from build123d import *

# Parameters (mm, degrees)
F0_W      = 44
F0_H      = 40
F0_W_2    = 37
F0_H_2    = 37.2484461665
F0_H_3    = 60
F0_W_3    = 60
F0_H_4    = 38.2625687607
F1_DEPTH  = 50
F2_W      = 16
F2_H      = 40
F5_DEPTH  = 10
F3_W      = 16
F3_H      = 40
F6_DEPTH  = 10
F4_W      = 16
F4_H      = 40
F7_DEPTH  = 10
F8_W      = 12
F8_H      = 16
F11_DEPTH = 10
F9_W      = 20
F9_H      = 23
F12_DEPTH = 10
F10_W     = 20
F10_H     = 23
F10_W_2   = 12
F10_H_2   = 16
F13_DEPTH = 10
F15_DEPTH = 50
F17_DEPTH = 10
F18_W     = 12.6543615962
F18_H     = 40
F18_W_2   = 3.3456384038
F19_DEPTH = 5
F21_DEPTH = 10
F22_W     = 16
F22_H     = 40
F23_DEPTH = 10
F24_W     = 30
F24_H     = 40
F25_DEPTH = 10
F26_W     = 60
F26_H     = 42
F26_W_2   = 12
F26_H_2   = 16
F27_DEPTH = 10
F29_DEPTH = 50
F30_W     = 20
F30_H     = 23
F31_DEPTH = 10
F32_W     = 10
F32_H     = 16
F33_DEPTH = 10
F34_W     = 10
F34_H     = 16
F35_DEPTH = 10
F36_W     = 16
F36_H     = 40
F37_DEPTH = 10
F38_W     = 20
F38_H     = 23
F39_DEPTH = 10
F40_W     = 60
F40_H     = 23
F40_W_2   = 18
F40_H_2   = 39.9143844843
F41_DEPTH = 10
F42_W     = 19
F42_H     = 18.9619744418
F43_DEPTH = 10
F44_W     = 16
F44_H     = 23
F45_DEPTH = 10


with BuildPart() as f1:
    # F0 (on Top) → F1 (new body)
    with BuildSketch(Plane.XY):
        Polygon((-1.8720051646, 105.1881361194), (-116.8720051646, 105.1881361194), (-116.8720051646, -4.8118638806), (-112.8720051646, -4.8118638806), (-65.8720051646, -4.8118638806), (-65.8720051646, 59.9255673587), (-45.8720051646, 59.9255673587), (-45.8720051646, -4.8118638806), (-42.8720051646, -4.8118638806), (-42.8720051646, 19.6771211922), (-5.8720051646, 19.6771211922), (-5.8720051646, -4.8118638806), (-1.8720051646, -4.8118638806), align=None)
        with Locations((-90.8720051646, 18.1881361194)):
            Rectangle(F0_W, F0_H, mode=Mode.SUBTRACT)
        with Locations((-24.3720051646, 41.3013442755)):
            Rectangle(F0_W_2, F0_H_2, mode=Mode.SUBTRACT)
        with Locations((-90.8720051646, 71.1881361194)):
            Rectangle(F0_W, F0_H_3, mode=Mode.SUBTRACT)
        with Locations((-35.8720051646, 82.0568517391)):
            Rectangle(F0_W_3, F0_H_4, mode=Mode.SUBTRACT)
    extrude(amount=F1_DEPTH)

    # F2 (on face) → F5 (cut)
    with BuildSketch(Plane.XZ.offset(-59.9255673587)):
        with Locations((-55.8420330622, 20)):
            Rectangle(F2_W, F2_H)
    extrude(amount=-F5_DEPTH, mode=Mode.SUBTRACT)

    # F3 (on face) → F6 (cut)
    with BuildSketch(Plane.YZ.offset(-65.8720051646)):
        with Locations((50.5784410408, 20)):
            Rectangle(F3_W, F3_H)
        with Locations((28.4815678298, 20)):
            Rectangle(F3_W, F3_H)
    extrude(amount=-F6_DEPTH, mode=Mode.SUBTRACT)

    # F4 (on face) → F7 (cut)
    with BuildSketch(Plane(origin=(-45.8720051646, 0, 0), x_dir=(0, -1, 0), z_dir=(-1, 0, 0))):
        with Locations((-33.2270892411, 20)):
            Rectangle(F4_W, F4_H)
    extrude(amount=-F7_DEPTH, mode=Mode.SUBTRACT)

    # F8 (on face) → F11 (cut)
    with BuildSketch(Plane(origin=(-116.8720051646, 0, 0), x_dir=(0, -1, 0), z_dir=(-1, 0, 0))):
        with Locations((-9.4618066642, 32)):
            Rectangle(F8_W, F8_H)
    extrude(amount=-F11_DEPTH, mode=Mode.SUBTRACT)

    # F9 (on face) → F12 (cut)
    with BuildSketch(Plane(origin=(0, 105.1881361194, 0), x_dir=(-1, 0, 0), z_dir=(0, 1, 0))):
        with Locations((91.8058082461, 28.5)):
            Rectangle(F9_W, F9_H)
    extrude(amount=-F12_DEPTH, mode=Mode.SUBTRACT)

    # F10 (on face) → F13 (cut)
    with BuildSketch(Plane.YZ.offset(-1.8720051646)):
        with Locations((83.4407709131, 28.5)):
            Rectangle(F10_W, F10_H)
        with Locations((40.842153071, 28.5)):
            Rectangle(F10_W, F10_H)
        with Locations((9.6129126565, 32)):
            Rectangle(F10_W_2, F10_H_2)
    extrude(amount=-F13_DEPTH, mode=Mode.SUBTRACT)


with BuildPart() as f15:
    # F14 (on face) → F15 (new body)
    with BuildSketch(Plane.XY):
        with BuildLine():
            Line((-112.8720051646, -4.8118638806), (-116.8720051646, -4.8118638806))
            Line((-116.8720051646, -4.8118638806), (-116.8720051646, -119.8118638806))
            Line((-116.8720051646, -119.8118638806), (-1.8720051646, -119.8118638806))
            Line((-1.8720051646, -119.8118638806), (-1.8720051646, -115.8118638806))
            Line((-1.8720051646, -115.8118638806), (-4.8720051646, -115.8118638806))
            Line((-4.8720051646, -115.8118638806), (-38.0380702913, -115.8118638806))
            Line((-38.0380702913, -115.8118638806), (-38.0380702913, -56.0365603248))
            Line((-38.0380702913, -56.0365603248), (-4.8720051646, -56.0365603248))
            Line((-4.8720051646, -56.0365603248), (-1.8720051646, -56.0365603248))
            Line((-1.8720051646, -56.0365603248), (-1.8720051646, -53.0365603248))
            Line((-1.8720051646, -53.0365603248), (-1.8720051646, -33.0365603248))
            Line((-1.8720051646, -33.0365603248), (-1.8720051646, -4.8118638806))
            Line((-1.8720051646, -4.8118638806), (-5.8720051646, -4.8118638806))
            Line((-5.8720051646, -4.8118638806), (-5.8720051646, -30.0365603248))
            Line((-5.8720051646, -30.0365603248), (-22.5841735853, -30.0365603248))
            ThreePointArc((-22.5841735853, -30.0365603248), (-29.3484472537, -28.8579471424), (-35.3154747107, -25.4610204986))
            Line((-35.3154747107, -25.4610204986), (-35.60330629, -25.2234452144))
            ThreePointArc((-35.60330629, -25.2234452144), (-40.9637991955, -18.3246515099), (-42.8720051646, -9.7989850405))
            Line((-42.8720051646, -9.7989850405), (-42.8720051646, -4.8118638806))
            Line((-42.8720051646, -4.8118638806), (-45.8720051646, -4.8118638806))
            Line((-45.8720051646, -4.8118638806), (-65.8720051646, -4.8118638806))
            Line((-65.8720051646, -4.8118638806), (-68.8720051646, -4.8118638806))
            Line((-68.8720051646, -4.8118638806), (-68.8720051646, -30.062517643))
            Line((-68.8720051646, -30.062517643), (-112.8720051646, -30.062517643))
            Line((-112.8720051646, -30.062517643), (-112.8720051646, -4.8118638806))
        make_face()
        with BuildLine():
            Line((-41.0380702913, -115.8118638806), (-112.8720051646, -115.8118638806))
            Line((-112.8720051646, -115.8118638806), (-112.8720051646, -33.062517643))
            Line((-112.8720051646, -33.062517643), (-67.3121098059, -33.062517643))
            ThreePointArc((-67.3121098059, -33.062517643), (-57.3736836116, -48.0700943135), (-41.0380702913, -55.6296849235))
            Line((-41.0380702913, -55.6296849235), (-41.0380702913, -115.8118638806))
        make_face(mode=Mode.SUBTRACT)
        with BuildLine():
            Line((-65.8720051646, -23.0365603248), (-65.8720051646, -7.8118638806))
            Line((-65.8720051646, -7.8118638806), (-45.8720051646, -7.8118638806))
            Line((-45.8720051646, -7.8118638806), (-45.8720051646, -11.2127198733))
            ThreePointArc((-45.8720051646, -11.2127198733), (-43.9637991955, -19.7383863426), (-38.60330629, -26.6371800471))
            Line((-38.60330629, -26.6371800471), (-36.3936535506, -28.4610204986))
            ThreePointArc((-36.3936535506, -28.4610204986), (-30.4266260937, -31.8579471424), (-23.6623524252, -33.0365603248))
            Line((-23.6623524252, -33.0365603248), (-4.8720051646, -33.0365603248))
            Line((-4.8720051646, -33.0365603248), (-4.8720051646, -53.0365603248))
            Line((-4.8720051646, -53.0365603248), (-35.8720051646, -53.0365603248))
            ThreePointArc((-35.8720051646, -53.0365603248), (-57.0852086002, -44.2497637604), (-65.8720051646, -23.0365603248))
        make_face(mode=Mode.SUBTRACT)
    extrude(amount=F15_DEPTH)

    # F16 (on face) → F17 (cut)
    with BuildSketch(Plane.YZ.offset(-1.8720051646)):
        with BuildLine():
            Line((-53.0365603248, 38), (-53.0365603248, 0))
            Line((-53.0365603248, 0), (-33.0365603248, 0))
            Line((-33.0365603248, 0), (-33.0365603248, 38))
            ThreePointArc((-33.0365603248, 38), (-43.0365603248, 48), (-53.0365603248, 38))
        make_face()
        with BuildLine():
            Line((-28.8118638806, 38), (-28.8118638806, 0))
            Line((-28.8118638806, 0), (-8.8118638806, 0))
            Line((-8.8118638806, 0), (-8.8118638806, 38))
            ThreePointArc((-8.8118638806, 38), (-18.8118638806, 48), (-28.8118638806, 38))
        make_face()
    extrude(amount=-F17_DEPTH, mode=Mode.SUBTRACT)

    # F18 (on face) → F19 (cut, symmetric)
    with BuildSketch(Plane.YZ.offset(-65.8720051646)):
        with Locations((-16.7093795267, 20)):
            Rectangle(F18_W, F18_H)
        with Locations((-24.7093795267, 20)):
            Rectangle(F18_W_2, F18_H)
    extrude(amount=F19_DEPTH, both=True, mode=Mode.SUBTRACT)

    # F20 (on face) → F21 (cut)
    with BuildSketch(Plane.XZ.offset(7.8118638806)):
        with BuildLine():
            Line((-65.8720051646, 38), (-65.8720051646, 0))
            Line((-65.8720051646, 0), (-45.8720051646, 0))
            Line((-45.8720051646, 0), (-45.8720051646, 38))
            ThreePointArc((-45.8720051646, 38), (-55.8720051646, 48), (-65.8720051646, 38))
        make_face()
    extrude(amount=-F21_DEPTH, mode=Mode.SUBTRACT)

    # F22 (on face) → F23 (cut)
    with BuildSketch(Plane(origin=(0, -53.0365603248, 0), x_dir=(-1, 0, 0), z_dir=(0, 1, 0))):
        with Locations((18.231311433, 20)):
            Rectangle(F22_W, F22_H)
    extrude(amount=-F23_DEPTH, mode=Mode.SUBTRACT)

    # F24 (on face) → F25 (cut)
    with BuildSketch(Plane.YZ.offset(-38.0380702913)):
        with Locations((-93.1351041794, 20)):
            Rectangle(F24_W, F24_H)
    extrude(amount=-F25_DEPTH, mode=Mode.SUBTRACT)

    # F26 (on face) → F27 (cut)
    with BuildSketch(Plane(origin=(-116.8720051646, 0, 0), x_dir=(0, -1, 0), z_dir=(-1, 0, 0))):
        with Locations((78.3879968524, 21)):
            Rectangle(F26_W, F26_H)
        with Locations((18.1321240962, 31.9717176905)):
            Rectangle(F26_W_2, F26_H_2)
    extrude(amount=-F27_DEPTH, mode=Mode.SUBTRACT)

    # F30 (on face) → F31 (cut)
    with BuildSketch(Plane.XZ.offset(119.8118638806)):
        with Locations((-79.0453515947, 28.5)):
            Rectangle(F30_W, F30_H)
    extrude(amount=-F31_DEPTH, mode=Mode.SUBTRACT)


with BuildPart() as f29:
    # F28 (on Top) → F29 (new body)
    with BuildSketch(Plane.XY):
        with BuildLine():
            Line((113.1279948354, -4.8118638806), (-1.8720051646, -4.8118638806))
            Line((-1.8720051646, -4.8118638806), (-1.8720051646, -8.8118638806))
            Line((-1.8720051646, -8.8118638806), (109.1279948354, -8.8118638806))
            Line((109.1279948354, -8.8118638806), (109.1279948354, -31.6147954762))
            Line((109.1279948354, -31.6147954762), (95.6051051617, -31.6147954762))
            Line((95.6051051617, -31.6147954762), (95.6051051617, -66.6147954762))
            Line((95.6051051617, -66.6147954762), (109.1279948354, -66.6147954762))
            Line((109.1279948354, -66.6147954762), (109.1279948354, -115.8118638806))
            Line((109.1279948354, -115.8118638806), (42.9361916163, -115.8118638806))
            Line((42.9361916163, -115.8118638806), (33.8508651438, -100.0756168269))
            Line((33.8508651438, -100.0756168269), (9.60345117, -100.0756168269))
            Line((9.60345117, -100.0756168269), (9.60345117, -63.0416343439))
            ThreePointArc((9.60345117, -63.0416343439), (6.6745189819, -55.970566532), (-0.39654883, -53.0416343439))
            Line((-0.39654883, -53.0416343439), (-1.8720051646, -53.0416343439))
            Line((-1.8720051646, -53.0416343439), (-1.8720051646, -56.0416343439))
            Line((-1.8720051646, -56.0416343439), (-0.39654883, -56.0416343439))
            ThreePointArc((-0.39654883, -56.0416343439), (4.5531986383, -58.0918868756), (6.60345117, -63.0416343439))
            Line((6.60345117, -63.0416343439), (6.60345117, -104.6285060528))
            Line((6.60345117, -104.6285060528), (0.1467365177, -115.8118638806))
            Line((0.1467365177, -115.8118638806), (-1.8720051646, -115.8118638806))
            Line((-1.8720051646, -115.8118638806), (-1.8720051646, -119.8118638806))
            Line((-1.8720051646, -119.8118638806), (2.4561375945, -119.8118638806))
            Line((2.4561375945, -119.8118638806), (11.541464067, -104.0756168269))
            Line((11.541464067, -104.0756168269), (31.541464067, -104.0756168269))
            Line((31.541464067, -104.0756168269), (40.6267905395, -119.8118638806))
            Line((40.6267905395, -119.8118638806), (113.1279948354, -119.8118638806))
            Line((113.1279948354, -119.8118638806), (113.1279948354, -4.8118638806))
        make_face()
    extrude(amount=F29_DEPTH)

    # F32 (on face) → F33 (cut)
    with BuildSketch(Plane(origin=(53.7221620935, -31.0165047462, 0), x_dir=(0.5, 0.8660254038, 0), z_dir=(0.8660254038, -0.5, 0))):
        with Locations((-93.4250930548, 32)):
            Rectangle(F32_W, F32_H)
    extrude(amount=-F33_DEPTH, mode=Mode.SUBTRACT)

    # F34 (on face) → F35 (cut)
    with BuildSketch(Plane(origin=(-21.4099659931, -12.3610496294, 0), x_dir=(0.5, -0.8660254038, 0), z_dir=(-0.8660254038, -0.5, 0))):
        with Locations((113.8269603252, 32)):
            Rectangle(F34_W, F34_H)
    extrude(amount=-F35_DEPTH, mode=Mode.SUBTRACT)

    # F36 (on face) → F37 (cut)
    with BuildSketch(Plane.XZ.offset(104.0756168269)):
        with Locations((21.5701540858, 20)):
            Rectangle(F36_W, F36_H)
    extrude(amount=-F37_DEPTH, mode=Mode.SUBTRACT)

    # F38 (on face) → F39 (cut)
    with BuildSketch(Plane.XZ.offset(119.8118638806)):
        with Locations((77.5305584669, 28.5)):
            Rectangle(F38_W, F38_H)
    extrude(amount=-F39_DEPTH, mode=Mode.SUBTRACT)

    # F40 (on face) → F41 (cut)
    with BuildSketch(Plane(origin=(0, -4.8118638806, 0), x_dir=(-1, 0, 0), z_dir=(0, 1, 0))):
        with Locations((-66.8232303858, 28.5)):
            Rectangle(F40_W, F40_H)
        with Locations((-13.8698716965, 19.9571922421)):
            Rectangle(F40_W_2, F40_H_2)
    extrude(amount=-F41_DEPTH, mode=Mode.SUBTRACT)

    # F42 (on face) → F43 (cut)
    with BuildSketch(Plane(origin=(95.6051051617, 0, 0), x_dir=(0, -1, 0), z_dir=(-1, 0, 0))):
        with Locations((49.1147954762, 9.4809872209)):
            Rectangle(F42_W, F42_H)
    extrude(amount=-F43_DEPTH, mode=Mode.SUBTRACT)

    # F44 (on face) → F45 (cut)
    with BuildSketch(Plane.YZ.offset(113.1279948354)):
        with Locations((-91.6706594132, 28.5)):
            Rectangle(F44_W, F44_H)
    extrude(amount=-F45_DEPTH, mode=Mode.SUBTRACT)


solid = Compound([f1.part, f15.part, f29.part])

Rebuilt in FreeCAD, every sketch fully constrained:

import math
import FreeCAD as App
import Part
import Sketcher

V = App.Vector
Q = App.Units.Quantity


def add_polygon(sketch, points):
    """Adds a closed chain of lines whose ends are joined by coincident constraints."""
    first, n = sketch.GeometryCount, len(points)
    for a, b in zip(points, points[1:] + points[:1]):
        sketch.addGeometry(Part.LineSegment(App.Vector(*a, 0), App.Vector(*b, 0)), False)
    for i in range(n):
        sketch.addConstraint(Sketcher.Constraint("Coincident", first + i, 2, first + (i + 1) % n, 1))

doc = App.newDocument("Part")
body = doc.addObject("PartDesign::Body", "Body")

sketch1 = doc.addObject("Sketcher::SketchObject", "Sketch")
body.addObject(sketch1)
sketch1.AttachmentSupport = (doc.XY_Plane, [""])
sketch1.MapMode = "FlatFace"
add_polygon(sketch1, [(-1.9, 105.2), (-116.9, 105.2), (-116.9, -4.8), (-65.9, -4.8), (-65.9, 59.9), (-45.9, 59.9), (-45.9, -4.8), (-42.9, -4.8), (-42.9, 19.7), (-5.9, 19.7), (-5.9, -4.8), (-1.9, -4.8)])
add_polygon(sketch1, [(-68.9, -1.8), (-112.9, -1.8), (-112.9, 38.2), (-68.9, 38.2)])
add_polygon(sketch1, [(-5.9, 22.7), (-42.9, 22.7), (-42.9, 59.9), (-5.9, 59.9)])
add_polygon(sketch1, [(-68.9, 41.2), (-112.9, 41.2), (-112.9, 101.2), (-68.9, 101.2)])
add_polygon(sketch1, [(-5.9, 62.9), (-65.9, 62.9), (-65.9, 101.2), (-5.9, 101.2)])
sketch1.addConstraint([
    Sketcher.Constraint("Horizontal", 0),
    Sketcher.Constraint("Vertical", 1),
    Sketcher.Constraint("Horizontal", 2),
    Sketcher.Constraint("Vertical", 3),
    Sketcher.Constraint("Horizontal", 4),
    Sketcher.Constraint("Vertical", 5),
    Sketcher.Constraint("Horizontal", 6),
    Sketcher.Constraint("Vertical", 7),
    Sketcher.Constraint("Horizontal", 8),
    Sketcher.Constraint("Vertical", 9),
    Sketcher.Constraint("Horizontal", 10),
    Sketcher.Constraint("Vertical", 11),
    Sketcher.Constraint("Horizontal", 12),
    Sketcher.Constraint("Vertical", 13),
    Sketcher.Constraint("Horizontal", 14),
    Sketcher.Constraint("Vertical", 15),
    Sketcher.Constraint("Horizontal", 16),
    Sketcher.Constraint("Vertical", 17),
    Sketcher.Constraint("Horizontal", 18),
    Sketcher.Constraint("Vertical", 19),
    Sketcher.Constraint("Horizontal", 20),
    Sketcher.Constraint("Vertical", 21),
    Sketcher.Constraint("Horizontal", 22),
    Sketcher.Constraint("Vertical", 23),
    Sketcher.Constraint("Horizontal", 24),
    Sketcher.Constraint("Vertical", 25),
    Sketcher.Constraint("Horizontal", 26),
    Sketcher.Constraint("Vertical", 27),
    Sketcher.Constraint("Horizontal", 2, 2, 5, 2),
    Sketcher.Constraint("Horizontal", 6, 2, 9, 2),
    Sketcher.Constraint("Horizontal", 4, 2, 17, 2),
    Sketcher.Constraint("Horizontal", 22, 2, 25, 2),
    Sketcher.Constraint("Vertical", 7, 2, 16, 2),
    Sketcher.Constraint("Vertical", 9, 2, 18, 2),
    Sketcher.Constraint("Vertical", 13, 2, 20, 2),
    Sketcher.Constraint("Vertical", 15, 2, 22, 2),
    Sketcher.Constraint("Vertical", 3, 2, 24, 2),
    Sketcher.Constraint("Vertical", 19, 2, 26, 2),
    Sketcher.Constraint("Equal", 26, 21),
    Sketcher.Constraint("DistanceX", 0, 2, 0, 1, 115.0),
    Sketcher.Constraint("DistanceX", 2, 1, 2, 2, 51.0),
    Sketcher.Constraint("DistanceX", 4, 1, 4, 2, 20.0),
    Sketcher.Constraint("DistanceX", 6, 1, 6, 2, 3.0),
    Sketcher.Constraint("DistanceX", 8, 1, 8, 2, 37.0),
    Sketcher.Constraint("DistanceX", 12, 2, 12, 1, 44.0),
    Sketcher.Constraint("DistanceY", 1, 2, 1, 1, 110.0),
    Sketcher.Constraint("DistanceY", 13, 1, 13, 2, 40.0),
    Sketcher.Constraint("DistanceX", 1, 2, 12, 2, 4.0),
    Sketcher.Constraint("DistanceY", 1, 2, 12, 2, 3.0),
    Sketcher.Constraint("DistanceY", 7, 2, 16, 2, 3.0),
    Sketcher.Constraint("DistanceY", 13, 2, 20, 2, 3.0),
    Sketcher.Constraint("DistanceY", 3, 2, 24, 2, 3.0),
    Sketcher.Constraint("DistanceY", 3, 1, 3, 2, 64.737431),
    Sketcher.Constraint("DistanceY", 7, 1, 7, 2, 24.488985),
    Sketcher.Constraint("DistanceY", -1, 1, 7, 2, 19.677121),
    Sketcher.Constraint("DistanceX", 0, 2, -1, 1, 116.872005),
])
pad1 = doc.addObject("PartDesign::Pad", "Pad")
body.addObject(pad1)
pad1.Profile = sketch1
pad1.Length = 50

sketch2 = doc.addObject("Sketcher::SketchObject", "Sketch001")
body.addObject(sketch2)
sketch2.AttachmentSupport = (doc.XZ_Plane, [""])
sketch2.MapMode = "FlatFace"
sketch2.AttachmentOffset = App.Placement(V(0, 0, -59.925567), App.Rotation())
add_polygon(sketch2, [(-64, 40), (-64, 0), (-48, 0), (-48, 40)])
sketch2.addConstraint([
    Sketcher.Constraint("Vertical", 0),
    Sketcher.Constraint("Horizontal", 1),
    Sketcher.Constraint("Vertical", 2),
    Sketcher.Constraint("Horizontal", 3),
    Sketcher.Constraint("PointOnObject", 0, 2, -1),
    Sketcher.Constraint("DistanceX", 1, 1, 1, 2, 16.0),
    Sketcher.Constraint("DistanceY", 0, 2, 0, 1, 40.0),
    Sketcher.Constraint("DistanceX", 0, 2, -1, 1, 63.842033),
])
pocket1 = doc.addObject("PartDesign::Pocket", "Pocket")
body.addObject(pocket1)
pocket1.Profile = sketch2
pocket1.Length = 10

sketch3 = doc.addObject("Sketcher::SketchObject", "Sketch002")
body.addObject(sketch3)
sketch3.AttachmentSupport = (doc.YZ_Plane, [""])
sketch3.MapMode = "FlatFace"
sketch3.AttachmentOffset = App.Placement(V(0, 0, -65.872005), App.Rotation())
add_polygon(sketch3, [(43, 40), (43, 0), (59, 0), (59, 40)])
add_polygon(sketch3, [(20, 40), (20, 0), (36, 0), (36, 40)])
sketch3.addConstraint([
    Sketcher.Constraint("Vertical", 0),
    Sketcher.Constraint("Horizontal", 1),
    Sketcher.Constraint("Vertical", 2),
    Sketcher.Constraint("Horizontal", 3),
    Sketcher.Constraint("Vertical", 4),
    Sketcher.Constraint("Horizontal", 5),
    Sketcher.Constraint("Vertical", 6),
    Sketcher.Constraint("Horizontal", 7),
    Sketcher.Constraint("PointOnObject", 0, 2, -1),
    Sketcher.Constraint("PointOnObject", 4, 2, -1),
    Sketcher.Constraint("Horizontal", 3, 2, 6, 2),
    Sketcher.Constraint("Equal", 3, 5),
    Sketcher.Constraint("DistanceX", 1, 1, 1, 2, 16.0),
    Sketcher.Constraint("DistanceY", 0, 2, 0, 1, 40.0),
    Sketcher.Constraint("DistanceX", -1, 1, 0, 2, 42.578441),
    Sketcher.Constraint("DistanceX", -1, 1, 4, 2, 20.481568),
])
pocket2 = doc.addObject("PartDesign::Pocket", "Pocket001")
body.addObject(pocket2)
pocket2.Profile = sketch3
pocket2.Length = 10

sketch4 = doc.addObject("Sketcher::SketchObject", "Sketch003")
body.addObject(sketch4)
sketch4.AttachmentSupport = (doc.YZ_Plane, [""])
sketch4.MapMode = "FlatFace"
sketch4.AttachmentOffset = App.Placement(V(0, 0, -45.872005), App.Rotation())
add_polygon(sketch4, [(41, 40), (41, 0), (25, 0), (25, 40)])
sketch4.addConstraint([
    Sketcher.Constraint("Vertical", 0),
    Sketcher.Constraint("Horizontal", 1),
    Sketcher.Constraint("Vertical", 2),
    Sketcher.Constraint("Horizontal", 3),
    Sketcher.Constraint("PointOnObject", 0, 2, -1),
    Sketcher.Constraint("DistanceX", 1, 2, 1, 1, 16.0),
    Sketcher.Constraint("DistanceY", 0, 2, 0, 1, 40.0),
    Sketcher.Constraint("DistanceX", -1, 1, 0, 2, 41.227089),
])
pocket3 = doc.addObject("PartDesign::Pocket", "Pocket002")
body.addObject(pocket3)
pocket3.Profile = sketch4
pocket3.Length = 10
pocket3.Reversed = True

sketch5 = doc.addObject("Sketcher::SketchObject", "Sketch004")
body.addObject(sketch5)
sketch5.AttachmentSupport = (doc.YZ_Plane, [""])
sketch5.MapMode = "FlatFace"
sketch5.AttachmentOffset = App.Placement(V(0, 0, -116.872005), App.Rotation())
add_polygon(sketch5, [(15, 40), (15, 24), (3, 24), (3, 40)])
sketch5.addConstraint([
    Sketcher.Constraint("Vertical", 0),
    Sketcher.Constraint("Horizontal", 1),
    Sketcher.Constraint("Vertical", 2),
    Sketcher.Constraint("Horizontal", 3),
    Sketcher.Constraint("DistanceX", 1, 2, 1, 1, 12.0),
    Sketcher.Constraint("DistanceY", 0, 2, 0, 1, 16.0),
    Sketcher.Constraint("DistanceY", -1, 1, 0, 2, 24.0),
    Sketcher.Constraint("DistanceX", -1, 1, 0, 2, 15.461807),
])
pocket4 = doc.addObject("PartDesign::Pocket", "Pocket003")
body.addObject(pocket4)
pocket4.Profile = sketch5
pocket4.Length = 10
pocket4.Reversed = True

sketch6 = doc.addObject("Sketcher::SketchObject", "Sketch005")
body.addObject(sketch6)
sketch6.AttachmentSupport = (doc.XZ_Plane, [""])
sketch6.MapMode = "FlatFace"
sketch6.AttachmentOffset = App.Placement(V(0, 0, -105.188136), App.Rotation())
add_polygon(sketch6, [(-82, 40), (-82, 17), (-102, 17), (-102, 40)])
sketch6.addConstraint([
    Sketcher.Constraint("Vertical", 0),
    Sketcher.Constraint("Horizontal", 1),
    Sketcher.Constraint("Vertical", 2),
    Sketcher.Constraint("Horizontal", 3),
    Sketcher.Constraint("DistanceX", 1, 2, 1, 1, 20.0),
    Sketcher.Constraint("DistanceY", 0, 2, 0, 1, 23.0),
    Sketcher.Constraint("DistanceY", -1, 1, 0, 2, 17.0),
    Sketcher.Constraint("DistanceX", 0, 2, -1, 1, 81.805808),
])
pocket5 = doc.addObject("PartDesign::Pocket", "Pocket004")
body.addObject(pocket5)
pocket5.Profile = sketch6
pocket5.Length = 10
pocket5.Reversed = True

sketch7 = doc.addObject("Sketcher::SketchObject", "Sketch006")
body.addObject(sketch7)
sketch7.AttachmentSupport = (doc.YZ_Plane, [""])
sketch7.MapMode = "FlatFace"
sketch7.AttachmentOffset = App.Placement(V(0, 0, -1.872005), App.Rotation())
add_polygon(sketch7, [(73, 40), (73, 17), (93, 17), (93, 40)])
add_polygon(sketch7, [(31, 40), (31, 17), (51, 17), (51, 40)])
add_polygon(sketch7, [(4, 40), (4, 24), (16, 24), (16, 40)])
sketch7.addConstraint([
    Sketcher.Constraint("Vertical", 0),
    Sketcher.Constraint("Horizontal", 1),
    Sketcher.Constraint("Vertical", 2),
    Sketcher.Constraint("Horizontal", 3),
    Sketcher.Constraint("Vertical", 4),
    Sketcher.Constraint("Horizontal", 5),
    Sketcher.Constraint("Vertical", 6),
    Sketcher.Constraint("Horizontal", 7),
    Sketcher.Constraint("Vertical", 8),
    Sketcher.Constraint("Horizontal", 9),
    Sketcher.Constraint("Vertical", 10),
    Sketcher.Constraint("Horizontal", 11),
    Sketcher.Constraint("Horizontal", 1, 2, 4, 2),
    Sketcher.Constraint("Horizontal", 3, 2, 6, 2),
    Sketcher.Constraint("Horizontal", 7, 2, 10, 2),
    Sketcher.Constraint("Equal", 3, 5),
    Sketcher.Constraint("DistanceX", 1, 1, 1, 2, 20.0),
    Sketcher.Constraint("DistanceX", 9, 1, 9, 2, 12.0),
    Sketcher.Constraint("DistanceY", 0, 2, 0, 1, 23.0),
    Sketcher.Constraint("DistanceY", 8, 2, 8, 1, 16.0),
    Sketcher.Constraint("DistanceY", -1, 1, 0, 2, 17.0),
    Sketcher.Constraint("DistanceX", -1, 1, 0, 2, 73.440771),
    Sketcher.Constraint("DistanceX", 8, 2, 4, 2, 27.22924),
    Sketcher.Constraint("DistanceX", 8, 2, 0, 2, 69.827858),
])
pocket6 = doc.addObject("PartDesign::Pocket", "Pocket005")
body.addObject(pocket6)
pocket6.Profile = sketch7
pocket6.Length = 10
body2 = doc.addObject("PartDesign::Body", "Body001")

sketch8 = doc.addObject("Sketcher::SketchObject", "Sketch007")
body2.addObject(sketch8)
sketch8.AttachmentSupport = (doc.getObject("XY_Plane001"), [""])
sketch8.MapMode = "FlatFace"
sketch8.addGeometry([
    Part.LineSegment(V(-112.87, -4.81, 0), V(-116.87, -4.81, 0)),
    Part.LineSegment(V(-116.87, -4.81, 0), V(-116.87, -119.81, 0)),
    Part.LineSegment(V(-116.87, -119.81, 0), V(-1.87, -119.81, 0)),
    Part.LineSegment(V(-1.87, -119.81, 0), V(-1.87, -115.81, 0)),
    Part.LineSegment(V(-1.87, -115.81, 0), V(-38.04, -115.81, 0)),
    Part.LineSegment(V(-38.04, -115.81, 0), V(-38.04, -56.04, 0)),
    Part.LineSegment(V(-38.04, -56.04, 0), V(-1.87, -56.04, 0)),
    Part.LineSegment(V(-1.87, -56.04, 0), V(-1.87, -4.81, 0)),
    Part.LineSegment(V(-1.87, -4.81, 0), V(-5.87, -4.81, 0)),
    Part.LineSegment(V(-5.87, -4.81, 0), V(-5.87, -30.04, 0)),
    Part.LineSegment(V(-5.87, -30.04, 0), V(-22.58, -30.04, 0)),
    Part.ArcOfCircle(Part.Circle(V(-22.58, -10.04, 0), V(0, 0, 1), 20), math.radians(-130), math.radians(-90)),
    Part.LineSegment(V(-35.32, -25.46, 0), V(-35.6, -25.22, 0)),
    Part.ArcOfCircle(Part.Circle(V(-22.87, -9.8, 0), V(0, 0, 1), 20), math.radians(180), math.radians(230)),
    Part.LineSegment(V(-42.87, -9.8, 0), V(-42.87, -4.81, 0)),
    Part.LineSegment(V(-42.87, -4.81, 0), V(-68.87, -4.81, 0)),
    Part.LineSegment(V(-68.87, -4.81, 0), V(-68.87, -30.06, 0)),
    Part.LineSegment(V(-68.87, -30.06, 0), V(-112.87, -30.06, 0)),
    Part.LineSegment(V(-112.87, -30.06, 0), V(-112.87, -4.81, 0)),
    Part.LineSegment(V(-41.04, -55.63, 0), V(-41.04, -115.81, 0)),
    Part.LineSegment(V(-41.04, -115.81, 0), V(-112.87, -115.81, 0)),
    Part.LineSegment(V(-112.87, -115.81, 0), V(-112.87, -33.06, 0)),
    Part.LineSegment(V(-112.87, -33.06, 0), V(-67.31, -33.06, 0)),
    Part.ArcOfCircle(Part.Circle(V(-35.87, -23.04, 0), V(0, 0, 1), 33), math.radians(-162), math.radians(-99)),
    Part.ArcOfCircle(Part.Circle(V(-35.87, -23.04, 0), V(0, 0, 1), 30), math.radians(180), math.radians(270)),
    Part.LineSegment(V(-65.87, -23.04, 0), V(-65.87, -7.81, 0)),
    Part.LineSegment(V(-65.87, -7.81, 0), V(-45.87, -7.81, 0)),
    Part.LineSegment(V(-45.87, -7.81, 0), V(-45.87, -11.21, 0)),
    Part.ArcOfCircle(Part.Circle(V(-25.87, -11.21, 0), V(0, 0, 1), 20), math.radians(180), math.radians(230)),
    Part.LineSegment(V(-38.6, -26.64, 0), V(-36.39, -28.46, 0)),
    Part.ArcOfCircle(Part.Circle(V(-23.66, -13.04, 0), V(0, 0, 1), 20), math.radians(-130), math.radians(-90)),
    Part.LineSegment(V(-23.66, -33.04, 0), V(-4.87, -33.04, 0)),
    Part.LineSegment(V(-4.87, -33.04, 0), V(-4.87, -53.04, 0)),
    Part.LineSegment(V(-4.87, -53.04, 0), V(-35.87, -53.04, 0)),
], False)
sketch8.addConstraint([
    Sketcher.Constraint("Coincident", 0, 2, 1, 1),
    Sketcher.Constraint("Coincident", 1, 2, 2, 1),
    Sketcher.Constraint("Coincident", 2, 2, 3, 1),
    Sketcher.Constraint("Coincident", 3, 2, 4, 1),
    Sketcher.Constraint("Coincident", 4, 2, 5, 1),
    Sketcher.Constraint("Coincident", 5, 2, 6, 1),
    Sketcher.Constraint("Coincident", 6, 2, 7, 1),
    Sketcher.Constraint("Coincident", 7, 2, 8, 1),
    Sketcher.Constraint("Coincident", 8, 2, 9, 1),
    Sketcher.Constraint("Coincident", 9, 2, 10, 1),
    Sketcher.Constraint("Tangent", 10, 2, 11, 2),
    Sketcher.Constraint("Tangent", 11, 1, 12, 1),
    Sketcher.Constraint("Tangent", 12, 2, 13, 2),
    Sketcher.Constraint("Tangent", 13, 1, 14, 1),
    Sketcher.Constraint("Coincident", 14, 2, 15, 1),
    Sketcher.Constraint("Coincident", 15, 2, 16, 1),
    Sketcher.Constraint("Coincident", 16, 2, 17, 1),
    Sketcher.Constraint("Coincident", 17, 2, 18, 1),
    Sketcher.Constraint("Coincident", 18, 2, 0, 1),
    Sketcher.Constraint("Coincident", 19, 2, 20, 1),
    Sketcher.Constraint("Coincident", 20, 2, 21, 1),
    Sketcher.Constraint("Coincident", 21, 2, 22, 1),
    Sketcher.Constraint("Coincident", 22, 2, 23, 1),
    Sketcher.Constraint("Coincident", 23, 2, 19, 1),
    Sketcher.Constraint("Tangent", 24, 1, 25, 1),
    Sketcher.Constraint("Coincident", 25, 2, 26, 1),
    Sketcher.Constraint("Coincident", 26, 2, 27, 1),
    Sketcher.Constraint("Tangent", 27, 2, 28, 1),
    Sketcher.Constraint("Tangent", 28, 2, 29, 1),
    Sketcher.Constraint("Tangent", 29, 2, 30, 1),
    Sketcher.Constraint("Tangent", 30, 2, 31, 1),
    Sketcher.Constraint("Coincident", 31, 2, 32, 1),
    Sketcher.Constraint("Coincident", 32, 2, 33, 1),
    Sketcher.Constraint("Tangent", 33, 2, 24, 2),
    Sketcher.Constraint("Horizontal", 0),
    Sketcher.Constraint("Vertical", 1),
    Sketcher.Constraint("Horizontal", 2),
    Sketcher.Constraint("Vertical", 3),
    Sketcher.Constraint("Horizontal", 4),
    Sketcher.Constraint("Vertical", 5),
    Sketcher.Constraint("Horizontal", 6),
    Sketcher.Constraint("Vertical", 7),
    Sketcher.Constraint("Horizontal", 8),
    Sketcher.Constraint("Vertical", 9),
    Sketcher.Constraint("Horizontal", 10),
    Sketcher.Constraint("Vertical", 14),
    Sketcher.Constraint("Horizontal", 15),
    Sketcher.Constraint("Vertical", 16),
    Sketcher.Constraint("Horizontal", 17),
    Sketcher.Constraint("Vertical", 18),
    Sketcher.Constraint("Vertical", 19),
    Sketcher.Constraint("Horizontal", 20),
    Sketcher.Constraint("Vertical", 21),
    Sketcher.Constraint("Horizontal", 22),
    Sketcher.Constraint("Vertical", 25),
    Sketcher.Constraint("Horizontal", 26),
    Sketcher.Constraint("Vertical", 27),
    Sketcher.Constraint("Horizontal", 31),
    Sketcher.Constraint("Vertical", 32),
    Sketcher.Constraint("Horizontal", 33),
    Sketcher.Constraint("Coincident", 24, 3, 23, 3),
    Sketcher.Constraint("Equal", 11, 13),
    Sketcher.Constraint("Equal", 13, 28),
    Sketcher.Constraint("Equal", 28, 30),
    Sketcher.Constraint("Parallel", 12, 29),
    Sketcher.Constraint("Horizontal", 0, 2, 7, 2),
    Sketcher.Constraint("Horizontal", 8, 2, 14, 2),
    Sketcher.Constraint("Horizontal", 4, 2, 19, 2),
    Sketcher.Constraint("Vertical", 3, 2, 6, 2),
    Sketcher.Constraint("Vertical", 18, 2, 20, 2),
    Sketcher.Constraint("Equal", 0, 8),
    Sketcher.Constraint("Equal", 2, 1),
    Sketcher.Constraint("Equal", 8, 3),
    Sketcher.Constraint("Equal", 26, 32),
    Sketcher.Constraint("Radius", 11, 20.0),
    Sketcher.Constraint("Radius", 23, 33.0),
    Sketcher.Constraint("Radius", 24, 30.0),
    Sketcher.Constraint("DistanceX", 0, 2, 0, 1, 4.0),
    Sketcher.Constraint("DistanceX", 2, 1, 2, 2, 115.0),
    Sketcher.Constraint("DistanceX", 15, 2, 15, 1, 26.0),
    Sketcher.Constraint("DistanceX", 17, 2, 17, 1, 44.0),
    Sketcher.Constraint("DistanceX", 26, 1, 26, 2, 20.0),
    Sketcher.Constraint("DistanceX", 33, 2, 33, 1, 31.0),
    Sketcher.Constraint("DistanceX", 23, 3, 13, 3, 13.0),
    Sketcher.Constraint("DistanceY", 23, 3, 11, 3, 13.0),
    Sketcher.Constraint("DistanceY", 5, 2, 23, 3, 33.0),
    Sketcher.Constraint("DistanceX", 19, 2, 4, 2, 3.0),
    Sketcher.Constraint("DistanceY", 21, 2, 17, 2, 3.0),
    Sketcher.Constraint("DistanceY", 25, 2, 15, 2, 3.0),
    Sketcher.Constraint("DistanceX", 10, 2, 10, 1, 16.712168),
    Sketcher.Constraint("DistanceY", 14, 1, 14, 2, 4.987121),
    Sketcher.Constraint("DistanceY", 19, 2, 19, 1, 60.182179),
    Sketcher.Constraint("DistanceX", 11, 1, 10, 2, 12.731301),
    Sketcher.Constraint("DistanceY", 11, 1, 28, 3, 14.248301),
    Sketcher.Constraint("DistanceX", 22, 1, 22, 2, 45.559895),
    Sketcher.Constraint("DistanceY", 11, 3, -1, 1, 10.03656),
    Sketcher.Constraint("DistanceX", 4, 2, -1, 1, 38.03807),
])
pad2 = doc.addObject("PartDesign::Pad", "Pad001")
body2.addObject(pad2)
pad2.Profile = sketch8
pad2.Length = 50

sketch9 = doc.addObject("Sketcher::SketchObject", "Sketch008")
body2.addObject(sketch9)
sketch9.AttachmentSupport = (doc.getObject("YZ_Plane001"), [""])
sketch9.MapMode = "FlatFace"
sketch9.AttachmentOffset = App.Placement(V(0, 0, -1.872005), App.Rotation())
sketch9.addGeometry([
    Part.LineSegment(V(-53, 38, 0), V(-53, 0, 0)),
    Part.LineSegment(V(-53, 0, 0), V(-33, 0, 0)),
    Part.LineSegment(V(-33, 0, 0), V(-33, 38, 0)),
    Part.ArcOfCircle(Part.Circle(V(-43, 38, 0), V(0, 0, 1), 10), math.radians(0), math.radians(180)),
    Part.LineSegment(V(-29, 38, 0), V(-29, 0, 0)),
    Part.LineSegment(V(-29, 0, 0), V(-9, 0, 0)),
    Part.LineSegment(V(-9, 0, 0), V(-9, 38, 0)),
    Part.ArcOfCircle(Part.Circle(V(-19, 38, 0), V(0, 0, 1), 10), math.radians(0), math.radians(180)),
], False)
sketch9.addConstraint([
    Sketcher.Constraint("Coincident", 0, 2, 1, 1),
    Sketcher.Constraint("Coincident", 1, 2, 2, 1),
    Sketcher.Constraint("Tangent", 2, 2, 3, 1),
    Sketcher.Constraint("Tangent", 3, 2, 0, 1),
    Sketcher.Constraint("Coincident", 4, 2, 5, 1),
    Sketcher.Constraint("Coincident", 5, 2, 6, 1),
    Sketcher.Constraint("Tangent", 6, 2, 7, 1),
    Sketcher.Constraint("Tangent", 7, 2, 4, 1),
    Sketcher.Constraint("Vertical", 0),
    Sketcher.Constraint("Horizontal", 1),
    Sketcher.Constraint("Vertical", 2),
    Sketcher.Constraint("Vertical", 4),
    Sketcher.Constraint("Horizontal", 5),
    Sketcher.Constraint("Vertical", 6),
    Sketcher.Constraint("Equal", 3, 7),
    Sketcher.Constraint("PointOnObject", 0, 2, -1),
    Sketcher.Constraint("PointOnObject", 4, 2, -1),
    Sketcher.Constraint("Horizontal", 3, 3, 7, 3),
    Sketcher.Constraint("Radius", 3, 10.0),
    Sketcher.Constraint("DistanceY", 0, 2, 0, 1, 38.0),
    Sketcher.Constraint("DistanceX", 3, 3, -1, 1, 43.03656),
    Sketcher.Constraint("DistanceX", 7, 3, -1, 1, 18.811864),
])
pocket7 = doc.addObject("PartDesign::Pocket", "Pocket006")
body2.addObject(pocket7)
pocket7.Profile = sketch9
pocket7.Length = 10

sketch10 = doc.addObject("Sketcher::SketchObject", "Sketch009")
body2.addObject(sketch10)
sketch10.AttachmentSupport = (doc.getObject("YZ_Plane001"), [""])
sketch10.MapMode = "FlatFace"
sketch10.AttachmentOffset = App.Placement(V(0, 0, -65.872005), App.Rotation())
add_polygon(sketch10, [(-10, 0), (-10, 40), (-26, 40), (-26, 0)])
sketch10.addConstraint([
    Sketcher.Constraint("Vertical", 0),
    Sketcher.Constraint("Horizontal", 1),
    Sketcher.Constraint("Vertical", 2),
    Sketcher.Constraint("Horizontal", 3),
    Sketcher.Constraint("PointOnObject", 2, 2, -1),
    Sketcher.Constraint("DistanceX", 1, 2, 1, 1, 16.0),
    Sketcher.Constraint("DistanceY", 0, 1, 0, 2, 40.0),
    Sketcher.Constraint("DistanceX", 0, 2, -1, 1, 10.382199),
])
pocket8 = doc.addObject("PartDesign::Pocket", "Pocket007")
body2.addObject(pocket8)
pocket8.Profile = sketch10
pocket8.Length = 10
pocket8.Midplane = True

sketch11 = doc.addObject("Sketcher::SketchObject", "Sketch010")
body2.addObject(sketch11)
sketch11.AttachmentSupport = (doc.getObject("XZ_Plane001"), [""])
sketch11.MapMode = "FlatFace"
sketch11.AttachmentOffset = App.Placement(V(0, 0, 7.811864), App.Rotation())
sketch11.addGeometry([
    Part.LineSegment(V(-66, 38, 0), V(-66, 0, 0)),
    Part.LineSegment(V(-66, 0, 0), V(-46, 0, 0)),
    Part.LineSegment(V(-46, 0, 0), V(-46, 38, 0)),
    Part.ArcOfCircle(Part.Circle(V(-56, 38, 0), V(0, 0, 1), 10), math.radians(0), math.radians(180)),
], False)
sketch11.addConstraint([
    Sketcher.Constraint("Coincident", 0, 2, 1, 1),
    Sketcher.Constraint("Coincident", 1, 2, 2, 1),
    Sketcher.Constraint("Tangent", 2, 2, 3, 1),
    Sketcher.Constraint("Tangent", 3, 2, 0, 1),
    Sketcher.Constraint("Vertical", 0),
    Sketcher.Constraint("Horizontal", 1),
    Sketcher.Constraint("Vertical", 2),
    Sketcher.Constraint("PointOnObject", 0, 2, -1),
    Sketcher.Constraint("Radius", 3, 10.0),
    Sketcher.Constraint("DistanceY", 0, 2, 0, 1, 38.0),
    Sketcher.Constraint("DistanceX", 3, 3, -1, 1, 55.872005),
])
pocket9 = doc.addObject("PartDesign::Pocket", "Pocket008")
body2.addObject(pocket9)
pocket9.Profile = sketch11
pocket9.Length = 10

sketch12 = doc.addObject("Sketcher::SketchObject", "Sketch011")
body2.addObject(sketch12)
sketch12.AttachmentSupport = (doc.getObject("XZ_Plane001"), [""])
sketch12.MapMode = "FlatFace"
sketch12.AttachmentOffset = App.Placement(V(0, 0, 53.03656), App.Rotation())
add_polygon(sketch12, [(-10, 40), (-10, 0), (-26, 0), (-26, 40)])
sketch12.addConstraint([
    Sketcher.Constraint("Vertical", 0),
    Sketcher.Constraint("Horizontal", 1),
    Sketcher.Constraint("Vertical", 2),
    Sketcher.Constraint("Horizontal", 3),
    Sketcher.Constraint("PointOnObject", 0, 2, -1),
    Sketcher.Constraint("DistanceX", 1, 2, 1, 1, 16.0),
    Sketcher.Constraint("DistanceY", 0, 2, 0, 1, 40.0),
    Sketcher.Constraint("DistanceX", 0, 2, -1, 1, 10.231311),
])
pocket10 = doc.addObject("PartDesign::Pocket", "Pocket009")
body2.addObject(pocket10)
pocket10.Profile = sketch12
pocket10.Length = 10
pocket10.Reversed = True

sketch13 = doc.addObject("Sketcher::SketchObject", "Sketch012")
body2.addObject(sketch13)
sketch13.AttachmentSupport = (doc.getObject("YZ_Plane001"), [""])
sketch13.MapMode = "FlatFace"
sketch13.AttachmentOffset = App.Placement(V(0, 0, -38.03807), App.Rotation())
add_polygon(sketch13, [(-108, 40), (-108, 0), (-78, 0), (-78, 40)])
sketch13.addConstraint([
    Sketcher.Constraint("Vertical", 0),
    Sketcher.Constraint("Horizontal", 1),
    Sketcher.Constraint("Vertical", 2),
    Sketcher.Constraint("Horizontal", 3),
    Sketcher.Constraint("PointOnObject", 0, 2, -1),
    Sketcher.Constraint("DistanceX", 1, 1, 1, 2, 30.0),
    Sketcher.Constraint("DistanceY", 0, 2, 0, 1, 40.0),
    Sketcher.Constraint("DistanceX", 0, 2, -1, 1, 108.135104),
])
pocket11 = doc.addObject("PartDesign::Pocket", "Pocket010")
body2.addObject(pocket11)
pocket11.Profile = sketch13
pocket11.Length = 10

sketch14 = doc.addObject("Sketcher::SketchObject", "Sketch013")
body2.addObject(sketch14)
sketch14.AttachmentSupport = (doc.getObject("YZ_Plane001"), [""])
sketch14.MapMode = "FlatFace"
sketch14.AttachmentOffset = App.Placement(V(0, 0, -116.872005), App.Rotation())
add_polygon(sketch14, [(-48, 42), (-48, 0), (-108, 0), (-108, 42)])
add_polygon(sketch14, [(-12, 40), (-12, 24), (-24, 24), (-24, 40)])
sketch14.addConstraint([
    Sketcher.Constraint("Vertical", 0),
    Sketcher.Constraint("Horizontal", 1),
    Sketcher.Constraint("Vertical", 2),
    Sketcher.Constraint("Horizontal", 3),
    Sketcher.Constraint("Vertical", 4),
    Sketcher.Constraint("Horizontal", 5),
    Sketcher.Constraint("Vertical", 6),
    Sketcher.Constraint("Horizontal", 7),
    Sketcher.Constraint("PointOnObject", 0, 2, -1),
    Sketcher.Constraint("DistanceX", 1, 2, 1, 1, 60.0),
    Sketcher.Constraint("DistanceX", 5, 2, 5, 1, 12.0),
    Sketcher.Constraint("DistanceY", 0, 2, 0, 1, 42.0),
    Sketcher.Constraint("DistanceY", 4, 2, 4, 1, 16.0),
    Sketcher.Constraint("DistanceX", 0, 2, -1, 1, 48.387997),
    Sketcher.Constraint("DistanceX", 4, 2, -1, 1, 12.132124),
    Sketcher.Constraint("DistanceY", -1, 1, 4, 2, 23.971718),
])
pocket12 = doc.addObject("PartDesign::Pocket", "Pocket011")
body2.addObject(pocket12)
pocket12.Profile = sketch14
pocket12.Length = 10
pocket12.Reversed = True

sketch15 = doc.addObject("Sketcher::SketchObject", "Sketch014")
body2.addObject(sketch15)
sketch15.AttachmentSupport = (doc.getObject("XZ_Plane001"), [""])
sketch15.MapMode = "FlatFace"
sketch15.AttachmentOffset = App.Placement(V(0, 0, 119.811864), App.Rotation())
add_polygon(sketch15, [(-89, 40), (-89, 17), (-69, 17), (-69, 40)])
sketch15.addConstraint([
    Sketcher.Constraint("Vertical", 0),
    Sketcher.Constraint("Horizontal", 1),
    Sketcher.Constraint("Vertical", 2),
    Sketcher.Constraint("Horizontal", 3),
    Sketcher.Constraint("DistanceX", 1, 1, 1, 2, 20.0),
    Sketcher.Constraint("DistanceY", 0, 2, 0, 1, 23.0),
    Sketcher.Constraint("DistanceY", -1, 1, 0, 2, 17.0),
    Sketcher.Constraint("DistanceX", 0, 2, -1, 1, 89.045352),
])
pocket13 = doc.addObject("PartDesign::Pocket", "Pocket012")
body2.addObject(pocket13)
pocket13.Profile = sketch15
pocket13.Length = 10
body3 = doc.addObject("PartDesign::Body", "Body002")

sketch16 = doc.addObject("Sketcher::SketchObject", "Sketch015")
body3.addObject(sketch16)
sketch16.AttachmentSupport = (doc.getObject("XY_Plane002"), [""])
sketch16.MapMode = "FlatFace"
sketch16.addGeometry([
    Part.LineSegment(V(113.1, -4.8, 0), V(-1.9, -4.8, 0)),
    Part.LineSegment(V(-1.9, -4.8, 0), V(-1.9, -8.8, 0)),
    Part.LineSegment(V(-1.9, -8.8, 0), V(109.1, -8.8, 0)),
    Part.LineSegment(V(109.1, -8.8, 0), V(109.1, -31.6, 0)),
    Part.LineSegment(V(109.1, -31.6, 0), V(95.6, -31.6, 0)),
    Part.LineSegment(V(95.6, -31.6, 0), V(95.6, -66.6, 0)),
    Part.LineSegment(V(95.6, -66.6, 0), V(109.1, -66.6, 0)),
    Part.LineSegment(V(109.1, -66.6, 0), V(109.1, -115.8, 0)),
    Part.LineSegment(V(109.1, -115.8, 0), V(42.9, -115.8, 0)),
    Part.LineSegment(V(42.9, -115.8, 0), V(33.9, -100.1, 0)),
    Part.LineSegment(V(33.9, -100.1, 0), V(9.6, -100.1, 0)),
    Part.LineSegment(V(9.6, -100.1, 0), V(9.6, -63, 0)),
    Part.ArcOfCircle(Part.Circle(V(-0.4, -63, 0), V(0, 0, 1), 10), math.radians(0), math.radians(90)),
    Part.LineSegment(V(-0.4, -53, 0), V(-1.9, -53, 0)),
    Part.LineSegment(V(-1.9, -53, 0), V(-1.9, -56, 0)),
    Part.LineSegment(V(-1.9, -56, 0), V(-0.4, -56, 0)),
    Part.ArcOfCircle(Part.Circle(V(-0.4, -63, 0), V(0, 0, 1), 7), math.radians(0), math.radians(90)),
    Part.LineSegment(V(6.6, -63, 0), V(6.6, -104.6, 0)),
    Part.LineSegment(V(6.6, -104.6, 0), V(0.1, -115.8, 0)),
    Part.LineSegment(V(0.1, -115.8, 0), V(-1.9, -115.8, 0)),
    Part.LineSegment(V(-1.9, -115.8, 0), V(-1.9, -119.8, 0)),
    Part.LineSegment(V(-1.9, -119.8, 0), V(2.5, -119.8, 0)),
    Part.LineSegment(V(2.5, -119.8, 0), V(11.5, -104.1, 0)),
    Part.LineSegment(V(11.5, -104.1, 0), V(31.5, -104.1, 0)),
    Part.LineSegment(V(31.5, -104.1, 0), V(40.6, -119.8, 0)),
    Part.LineSegment(V(40.6, -119.8, 0), V(113.1, -119.8, 0)),
    Part.LineSegment(V(113.1, -119.8, 0), V(113.1, -4.8, 0)),
], False)
sketch16.addConstraint([
    Sketcher.Constraint("Coincident", 0, 2, 1, 1),
    Sketcher.Constraint("Coincident", 1, 2, 2, 1),
    Sketcher.Constraint("Coincident", 2, 2, 3, 1),
    Sketcher.Constraint("Coincident", 3, 2, 4, 1),
    Sketcher.Constraint("Coincident", 4, 2, 5, 1),
    Sketcher.Constraint("Coincident", 5, 2, 6, 1),
    Sketcher.Constraint("Coincident", 6, 2, 7, 1),
    Sketcher.Constraint("Coincident", 7, 2, 8, 1),
    Sketcher.Constraint("Coincident", 8, 2, 9, 1),
    Sketcher.Constraint("Coincident", 9, 2, 10, 1),
    Sketcher.Constraint("Coincident", 10, 2, 11, 1),
    Sketcher.Constraint("Tangent", 11, 2, 12, 1),
    Sketcher.Constraint("Tangent", 12, 2, 13, 1),
    Sketcher.Constraint("Coincident", 13, 2, 14, 1),
    Sketcher.Constraint("Coincident", 14, 2, 15, 1),
    Sketcher.Constraint("Tangent", 15, 2, 16, 2),
    Sketcher.Constraint("Tangent", 16, 1, 17, 1),
    Sketcher.Constraint("Coincident", 17, 2, 18, 1),
    Sketcher.Constraint("Coincident", 18, 2, 19, 1),
    Sketcher.Constraint("Coincident", 19, 2, 20, 1),
    Sketcher.Constraint("Coincident", 20, 2, 21, 1),
    Sketcher.Constraint("Coincident", 21, 2, 22, 1),
    Sketcher.Constraint("Coincident", 22, 2, 23, 1),
    Sketcher.Constraint("Coincident", 23, 2, 24, 1),
    Sketcher.Constraint("Coincident", 24, 2, 25, 1),
    Sketcher.Constraint("Coincident", 25, 2, 26, 1),
    Sketcher.Constraint("Coincident", 26, 2, 0, 1),
    Sketcher.Constraint("Horizontal", 0),
    Sketcher.Constraint("Vertical", 1),
    Sketcher.Constraint("Horizontal", 2),
    Sketcher.Constraint("Vertical", 3),
    Sketcher.Constraint("Horizontal", 4),
    Sketcher.Constraint("Vertical", 5),
    Sketcher.Constraint("Horizontal", 6),
    Sketcher.Constraint("Vertical", 7),
    Sketcher.Constraint("Horizontal", 8),
    Sketcher.Constraint("Horizontal", 10),
    Sketcher.Constraint("Vertical", 11),
    Sketcher.Constraint("Horizontal", 13),
    Sketcher.Constraint("Vertical", 14),
    Sketcher.Constraint("Horizontal", 15),
    Sketcher.Constraint("Vertical", 17),
    Sketcher.Constraint("Horizontal", 19),
    Sketcher.Constraint("Vertical", 20),
    Sketcher.Constraint("Horizontal", 21),
    Sketcher.Constraint("Horizontal", 23),
    Sketcher.Constraint("Horizontal", 25),
    Sketcher.Constraint("Vertical", 26),
    Sketcher.Constraint("Coincident", 16, 3, 12, 3),
    Sketcher.Constraint("Parallel", 18, 22),
    Sketcher.Constraint("Parallel", 9, 24),
    Sketcher.Constraint("Horizontal", 8, 2, 18, 2),
    Sketcher.Constraint("Horizontal", 21, 2, 24, 2),
    Sketcher.Constraint("Vertical", 3, 2, 6, 2),
    Sketcher.Constraint("Vertical", 1, 2, 13, 2),
    Sketcher.Constraint("Vertical", 14, 2, 19, 2),
    Sketcher.Constraint("Equal", 1, 20),
    Sketcher.Constraint("Equal", 0, 26),
    Sketcher.Constraint("Equal", 9, 22),
    Sketcher.Constraint("Equal", 22, 24),
    Sketcher.Constraint("Radius", 12, 10.0),
    Sketcher.Constraint("Radius", 16, 7.0),
    Sketcher.Constraint("DistanceX", 0, 2, 0, 1, 115.0),
    Sketcher.Constraint("DistanceX", 2, 1, 2, 2, 111.0),
    Sketcher.Constraint("DistanceX", 23, 1, 23, 2, 20.0),
    Sketcher.Constraint("DistanceY", 1, 2, 1, 1, 4.0),
    Sketcher.Constraint("DistanceY", 5, 2, 5, 1, 35.0),
    Sketcher.Constraint("Angle", 9, Q("120 deg")),
    Sketcher.Constraint("DistanceX", 4, 2, 4, 1, 13.52289),
    Sketcher.Constraint("DistanceX", 19, 2, 19, 1, 2.018742),
    Sketcher.Constraint("DistanceY", 3, 2, 3, 1, 22.802932),
    Sketcher.Constraint("DistanceY", 17, 2, 17, 1, 41.586872),
    Sketcher.Constraint("DistanceX", 18, 2, 21, 2, 2.309401),
    Sketcher.Constraint("DistanceX", 23, 2, 9, 2, 2.309401),
    Sketcher.Constraint("Distance", 18, 12.913429),
    Sketcher.Constraint("DistanceX", 8, 2, 8, 1, 66.191803),
    Sketcher.Constraint("DistanceX", 12, 3, -1, 1, 0.396549),
    Sketcher.Constraint("DistanceY", 12, 3, -1, 1, 63.041634),
])
pad3 = doc.addObject("PartDesign::Pad", "Pad002")
body3.addObject(pad3)
pad3.Profile = sketch16
pad3.Length = 50

sketch17 = doc.addObject("Sketcher::SketchObject", "Sketch016")
body3.addObject(sketch17)
sketch17.Placement = App.Placement(V(53.722162, -31.016505, 0), App.Rotation(V(0.5, 0.866025404, 0), V(0, 0, 1), V(0.866025404, -0.5, 0), "ZXY"))
add_polygon(sketch17, [(-98, 40), (-98, 24), (-88, 24), (-88, 40)])
sketch17.addConstraint([
    Sketcher.Constraint("Vertical", 0),
    Sketcher.Constraint("Horizontal", 1),
    Sketcher.Constraint("Vertical", 2),
    Sketcher.Constraint("Horizontal", 3),
    Sketcher.Constraint("DistanceX", 1, 1, 1, 2, 10.0),
    Sketcher.Constraint("DistanceY", 0, 2, 0, 1, 16.0),
    Sketcher.Constraint("DistanceY", -1, 1, 0, 2, 24.0),
    Sketcher.Constraint("DistanceX", 0, 2, -1, 1, 98.425093),
])
pocket14 = doc.addObject("PartDesign::Pocket", "Pocket013")
body3.addObject(pocket14)
pocket14.Profile = sketch17
pocket14.Length = 10

sketch18 = doc.addObject("Sketcher::SketchObject", "Sketch017")
body3.addObject(sketch18)
sketch18.Placement = App.Placement(V(-21.409966, -12.36105, 0), App.Rotation(V(0.5, -0.866025404, 0), V(0, 0, 1), V(-0.866025404, -0.5, 0), "ZXY"))
add_polygon(sketch18, [(109, 40), (109, 24), (119, 24), (119, 40)])
sketch18.addConstraint([
    Sketcher.Constraint("Vertical", 0),
    Sketcher.Constraint("Horizontal", 1),
    Sketcher.Constraint("Vertical", 2),
    Sketcher.Constraint("Horizontal", 3),
    Sketcher.Constraint("DistanceX", 1, 1, 1, 2, 10.0),
    Sketcher.Constraint("DistanceY", 0, 2, 0, 1, 16.0),
    Sketcher.Constraint("DistanceY", -1, 1, 0, 2, 24.0),
    Sketcher.Constraint("DistanceX", -1, 1, 0, 2, 108.82696),
])
pocket15 = doc.addObject("PartDesign::Pocket", "Pocket014")
body3.addObject(pocket15)
pocket15.Profile = sketch18
pocket15.Length = 10

sketch19 = doc.addObject("Sketcher::SketchObject", "Sketch018")
body3.addObject(sketch19)
sketch19.AttachmentSupport = (doc.getObject("XZ_Plane002"), [""])
sketch19.MapMode = "FlatFace"
sketch19.AttachmentOffset = App.Placement(V(0, 0, 104.075617), App.Rotation())
add_polygon(sketch19, [(14, 40), (14, 0), (30, 0), (30, 40)])
sketch19.addConstraint([
    Sketcher.Constraint("Vertical", 0),
    Sketcher.Constraint("Horizontal", 1),
    Sketcher.Constraint("Vertical", 2),
    Sketcher.Constraint("Horizontal", 3),
    Sketcher.Constraint("PointOnObject", 0, 2, -1),
    Sketcher.Constraint("DistanceX", 1, 1, 1, 2, 16.0),
    Sketcher.Constraint("DistanceY", 0, 2, 0, 1, 40.0),
    Sketcher.Constraint("DistanceX", -1, 1, 0, 2, 13.570154),
])
pocket16 = doc.addObject("PartDesign::Pocket", "Pocket015")
body3.addObject(pocket16)
pocket16.Profile = sketch19
pocket16.Length = 10

sketch20 = doc.addObject("Sketcher::SketchObject", "Sketch019")
body3.addObject(sketch20)
sketch20.AttachmentSupport = (doc.getObject("XZ_Plane002"), [""])
sketch20.MapMode = "FlatFace"
sketch20.AttachmentOffset = App.Placement(V(0, 0, 119.811864), App.Rotation())
add_polygon(sketch20, [(68, 40), (68, 17), (88, 17), (88, 40)])
sketch20.addConstraint([
    Sketcher.Constraint("Vertical", 0),
    Sketcher.Constraint("Horizontal", 1),
    Sketcher.Constraint("Vertical", 2),
    Sketcher.Constraint("Horizontal", 3),
    Sketcher.Constraint("DistanceX", 1, 1, 1, 2, 20.0),
    Sketcher.Constraint("DistanceY", 0, 2, 0, 1, 23.0),
    Sketcher.Constraint("DistanceY", -1, 1, 0, 2, 17.0),
    Sketcher.Constraint("DistanceX", -1, 1, 0, 2, 67.530558),
])
pocket17 = doc.addObject("PartDesign::Pocket", "Pocket016")
body3.addObject(pocket17)
pocket17.Profile = sketch20
pocket17.Length = 10

sketch21 = doc.addObject("Sketcher::SketchObject", "Sketch020")
body3.addObject(sketch21)
sketch21.AttachmentSupport = (doc.getObject("XZ_Plane002"), [""])
sketch21.MapMode = "FlatFace"
sketch21.AttachmentOffset = App.Placement(V(0, 0, 4.811864), App.Rotation())
add_polygon(sketch21, [(97, 40), (97, 17), (37, 17), (37, 40)])
add_polygon(sketch21, [(23, 40), (23, 0), (5, 0), (5, 40)])
sketch21.addConstraint([
    Sketcher.Constraint("Vertical", 0),
    Sketcher.Constraint("Horizontal", 1),
    Sketcher.Constraint("Vertical", 2),
    Sketcher.Constraint("Horizontal", 3),
    Sketcher.Constraint("Vertical", 4),
    Sketcher.Constraint("Horizontal", 5),
    Sketcher.Constraint("Vertical", 6),
    Sketcher.Constraint("Horizontal", 7),
    Sketcher.Constraint("PointOnObject", 4, 2, -1),
    Sketcher.Constraint("DistanceX", 1, 2, 1, 1, 60.0),
    Sketcher.Constraint("DistanceX", 5, 2, 5, 1, 18.0),
    Sketcher.Constraint("DistanceY", 0, 2, 0, 1, 23.0),
    Sketcher.Constraint("DistanceY", -1, 1, 0, 2, 17.0),
    Sketcher.Constraint("DistanceY", 4, 2, 4, 1, 39.914384),
    Sketcher.Constraint("DistanceX", -1, 1, 0, 2, 96.82323),
    Sketcher.Constraint("DistanceX", -1, 1, 4, 2, 22.869872),
])
pocket18 = doc.addObject("PartDesign::Pocket", "Pocket017")
body3.addObject(pocket18)
pocket18.Profile = sketch21
pocket18.Length = 10
pocket18.Reversed = True

sketch22 = doc.addObject("Sketcher::SketchObject", "Sketch021")
body3.addObject(sketch22)
sketch22.AttachmentSupport = (doc.getObject("YZ_Plane002"), [""])
sketch22.MapMode = "FlatFace"
sketch22.AttachmentOffset = App.Placement(V(0, 0, 95.605105), App.Rotation())
add_polygon(sketch22, [(-40, 19), (-40, 0), (-59, 0), (-59, 19)])
sketch22.addConstraint([
    Sketcher.Constraint("Vertical", 0),
    Sketcher.Constraint("Horizontal", 1),
    Sketcher.Constraint("Vertical", 2),
    Sketcher.Constraint("Horizontal", 3),
    Sketcher.Constraint("PointOnObject", 0, 2, -1),
    Sketcher.Constraint("DistanceX", 1, 2, 1, 1, 19.0),
    Sketcher.Constraint("DistanceY", 0, 2, 0, 1, 18.961974),
    Sketcher.Constraint("DistanceX", 0, 2, -1, 1, 39.614795),
])
pocket19 = doc.addObject("PartDesign::Pocket", "Pocket018")
body3.addObject(pocket19)
pocket19.Profile = sketch22
pocket19.Length = 10
pocket19.Reversed = True

sketch23 = doc.addObject("Sketcher::SketchObject", "Sketch022")
body3.addObject(sketch23)
sketch23.AttachmentSupport = (doc.getObject("YZ_Plane002"), [""])
sketch23.MapMode = "FlatFace"
sketch23.AttachmentOffset = App.Placement(V(0, 0, 113.127995), App.Rotation())
add_polygon(sketch23, [(-100, 40), (-100, 17), (-84, 17), (-84, 40)])
sketch23.addConstraint([
    Sketcher.Constraint("Vertical", 0),
    Sketcher.Constraint("Horizontal", 1),
    Sketcher.Constraint("Vertical", 2),
    Sketcher.Constraint("Horizontal", 3),
    Sketcher.Constraint("DistanceX", 1, 1, 1, 2, 16.0),
    Sketcher.Constraint("DistanceY", 0, 2, 0, 1, 23.0),
    Sketcher.Constraint("DistanceY", -1, 1, 0, 2, 17.0),
    Sketcher.Constraint("DistanceX", 0, 2, -1, 1, 99.670659),
])
pocket20 = doc.addObject("PartDesign::Pocket", "Pocket019")
body3.addObject(pocket20)
pocket20.Profile = sketch23
pocket20.Length = 10

doc.recompute()
